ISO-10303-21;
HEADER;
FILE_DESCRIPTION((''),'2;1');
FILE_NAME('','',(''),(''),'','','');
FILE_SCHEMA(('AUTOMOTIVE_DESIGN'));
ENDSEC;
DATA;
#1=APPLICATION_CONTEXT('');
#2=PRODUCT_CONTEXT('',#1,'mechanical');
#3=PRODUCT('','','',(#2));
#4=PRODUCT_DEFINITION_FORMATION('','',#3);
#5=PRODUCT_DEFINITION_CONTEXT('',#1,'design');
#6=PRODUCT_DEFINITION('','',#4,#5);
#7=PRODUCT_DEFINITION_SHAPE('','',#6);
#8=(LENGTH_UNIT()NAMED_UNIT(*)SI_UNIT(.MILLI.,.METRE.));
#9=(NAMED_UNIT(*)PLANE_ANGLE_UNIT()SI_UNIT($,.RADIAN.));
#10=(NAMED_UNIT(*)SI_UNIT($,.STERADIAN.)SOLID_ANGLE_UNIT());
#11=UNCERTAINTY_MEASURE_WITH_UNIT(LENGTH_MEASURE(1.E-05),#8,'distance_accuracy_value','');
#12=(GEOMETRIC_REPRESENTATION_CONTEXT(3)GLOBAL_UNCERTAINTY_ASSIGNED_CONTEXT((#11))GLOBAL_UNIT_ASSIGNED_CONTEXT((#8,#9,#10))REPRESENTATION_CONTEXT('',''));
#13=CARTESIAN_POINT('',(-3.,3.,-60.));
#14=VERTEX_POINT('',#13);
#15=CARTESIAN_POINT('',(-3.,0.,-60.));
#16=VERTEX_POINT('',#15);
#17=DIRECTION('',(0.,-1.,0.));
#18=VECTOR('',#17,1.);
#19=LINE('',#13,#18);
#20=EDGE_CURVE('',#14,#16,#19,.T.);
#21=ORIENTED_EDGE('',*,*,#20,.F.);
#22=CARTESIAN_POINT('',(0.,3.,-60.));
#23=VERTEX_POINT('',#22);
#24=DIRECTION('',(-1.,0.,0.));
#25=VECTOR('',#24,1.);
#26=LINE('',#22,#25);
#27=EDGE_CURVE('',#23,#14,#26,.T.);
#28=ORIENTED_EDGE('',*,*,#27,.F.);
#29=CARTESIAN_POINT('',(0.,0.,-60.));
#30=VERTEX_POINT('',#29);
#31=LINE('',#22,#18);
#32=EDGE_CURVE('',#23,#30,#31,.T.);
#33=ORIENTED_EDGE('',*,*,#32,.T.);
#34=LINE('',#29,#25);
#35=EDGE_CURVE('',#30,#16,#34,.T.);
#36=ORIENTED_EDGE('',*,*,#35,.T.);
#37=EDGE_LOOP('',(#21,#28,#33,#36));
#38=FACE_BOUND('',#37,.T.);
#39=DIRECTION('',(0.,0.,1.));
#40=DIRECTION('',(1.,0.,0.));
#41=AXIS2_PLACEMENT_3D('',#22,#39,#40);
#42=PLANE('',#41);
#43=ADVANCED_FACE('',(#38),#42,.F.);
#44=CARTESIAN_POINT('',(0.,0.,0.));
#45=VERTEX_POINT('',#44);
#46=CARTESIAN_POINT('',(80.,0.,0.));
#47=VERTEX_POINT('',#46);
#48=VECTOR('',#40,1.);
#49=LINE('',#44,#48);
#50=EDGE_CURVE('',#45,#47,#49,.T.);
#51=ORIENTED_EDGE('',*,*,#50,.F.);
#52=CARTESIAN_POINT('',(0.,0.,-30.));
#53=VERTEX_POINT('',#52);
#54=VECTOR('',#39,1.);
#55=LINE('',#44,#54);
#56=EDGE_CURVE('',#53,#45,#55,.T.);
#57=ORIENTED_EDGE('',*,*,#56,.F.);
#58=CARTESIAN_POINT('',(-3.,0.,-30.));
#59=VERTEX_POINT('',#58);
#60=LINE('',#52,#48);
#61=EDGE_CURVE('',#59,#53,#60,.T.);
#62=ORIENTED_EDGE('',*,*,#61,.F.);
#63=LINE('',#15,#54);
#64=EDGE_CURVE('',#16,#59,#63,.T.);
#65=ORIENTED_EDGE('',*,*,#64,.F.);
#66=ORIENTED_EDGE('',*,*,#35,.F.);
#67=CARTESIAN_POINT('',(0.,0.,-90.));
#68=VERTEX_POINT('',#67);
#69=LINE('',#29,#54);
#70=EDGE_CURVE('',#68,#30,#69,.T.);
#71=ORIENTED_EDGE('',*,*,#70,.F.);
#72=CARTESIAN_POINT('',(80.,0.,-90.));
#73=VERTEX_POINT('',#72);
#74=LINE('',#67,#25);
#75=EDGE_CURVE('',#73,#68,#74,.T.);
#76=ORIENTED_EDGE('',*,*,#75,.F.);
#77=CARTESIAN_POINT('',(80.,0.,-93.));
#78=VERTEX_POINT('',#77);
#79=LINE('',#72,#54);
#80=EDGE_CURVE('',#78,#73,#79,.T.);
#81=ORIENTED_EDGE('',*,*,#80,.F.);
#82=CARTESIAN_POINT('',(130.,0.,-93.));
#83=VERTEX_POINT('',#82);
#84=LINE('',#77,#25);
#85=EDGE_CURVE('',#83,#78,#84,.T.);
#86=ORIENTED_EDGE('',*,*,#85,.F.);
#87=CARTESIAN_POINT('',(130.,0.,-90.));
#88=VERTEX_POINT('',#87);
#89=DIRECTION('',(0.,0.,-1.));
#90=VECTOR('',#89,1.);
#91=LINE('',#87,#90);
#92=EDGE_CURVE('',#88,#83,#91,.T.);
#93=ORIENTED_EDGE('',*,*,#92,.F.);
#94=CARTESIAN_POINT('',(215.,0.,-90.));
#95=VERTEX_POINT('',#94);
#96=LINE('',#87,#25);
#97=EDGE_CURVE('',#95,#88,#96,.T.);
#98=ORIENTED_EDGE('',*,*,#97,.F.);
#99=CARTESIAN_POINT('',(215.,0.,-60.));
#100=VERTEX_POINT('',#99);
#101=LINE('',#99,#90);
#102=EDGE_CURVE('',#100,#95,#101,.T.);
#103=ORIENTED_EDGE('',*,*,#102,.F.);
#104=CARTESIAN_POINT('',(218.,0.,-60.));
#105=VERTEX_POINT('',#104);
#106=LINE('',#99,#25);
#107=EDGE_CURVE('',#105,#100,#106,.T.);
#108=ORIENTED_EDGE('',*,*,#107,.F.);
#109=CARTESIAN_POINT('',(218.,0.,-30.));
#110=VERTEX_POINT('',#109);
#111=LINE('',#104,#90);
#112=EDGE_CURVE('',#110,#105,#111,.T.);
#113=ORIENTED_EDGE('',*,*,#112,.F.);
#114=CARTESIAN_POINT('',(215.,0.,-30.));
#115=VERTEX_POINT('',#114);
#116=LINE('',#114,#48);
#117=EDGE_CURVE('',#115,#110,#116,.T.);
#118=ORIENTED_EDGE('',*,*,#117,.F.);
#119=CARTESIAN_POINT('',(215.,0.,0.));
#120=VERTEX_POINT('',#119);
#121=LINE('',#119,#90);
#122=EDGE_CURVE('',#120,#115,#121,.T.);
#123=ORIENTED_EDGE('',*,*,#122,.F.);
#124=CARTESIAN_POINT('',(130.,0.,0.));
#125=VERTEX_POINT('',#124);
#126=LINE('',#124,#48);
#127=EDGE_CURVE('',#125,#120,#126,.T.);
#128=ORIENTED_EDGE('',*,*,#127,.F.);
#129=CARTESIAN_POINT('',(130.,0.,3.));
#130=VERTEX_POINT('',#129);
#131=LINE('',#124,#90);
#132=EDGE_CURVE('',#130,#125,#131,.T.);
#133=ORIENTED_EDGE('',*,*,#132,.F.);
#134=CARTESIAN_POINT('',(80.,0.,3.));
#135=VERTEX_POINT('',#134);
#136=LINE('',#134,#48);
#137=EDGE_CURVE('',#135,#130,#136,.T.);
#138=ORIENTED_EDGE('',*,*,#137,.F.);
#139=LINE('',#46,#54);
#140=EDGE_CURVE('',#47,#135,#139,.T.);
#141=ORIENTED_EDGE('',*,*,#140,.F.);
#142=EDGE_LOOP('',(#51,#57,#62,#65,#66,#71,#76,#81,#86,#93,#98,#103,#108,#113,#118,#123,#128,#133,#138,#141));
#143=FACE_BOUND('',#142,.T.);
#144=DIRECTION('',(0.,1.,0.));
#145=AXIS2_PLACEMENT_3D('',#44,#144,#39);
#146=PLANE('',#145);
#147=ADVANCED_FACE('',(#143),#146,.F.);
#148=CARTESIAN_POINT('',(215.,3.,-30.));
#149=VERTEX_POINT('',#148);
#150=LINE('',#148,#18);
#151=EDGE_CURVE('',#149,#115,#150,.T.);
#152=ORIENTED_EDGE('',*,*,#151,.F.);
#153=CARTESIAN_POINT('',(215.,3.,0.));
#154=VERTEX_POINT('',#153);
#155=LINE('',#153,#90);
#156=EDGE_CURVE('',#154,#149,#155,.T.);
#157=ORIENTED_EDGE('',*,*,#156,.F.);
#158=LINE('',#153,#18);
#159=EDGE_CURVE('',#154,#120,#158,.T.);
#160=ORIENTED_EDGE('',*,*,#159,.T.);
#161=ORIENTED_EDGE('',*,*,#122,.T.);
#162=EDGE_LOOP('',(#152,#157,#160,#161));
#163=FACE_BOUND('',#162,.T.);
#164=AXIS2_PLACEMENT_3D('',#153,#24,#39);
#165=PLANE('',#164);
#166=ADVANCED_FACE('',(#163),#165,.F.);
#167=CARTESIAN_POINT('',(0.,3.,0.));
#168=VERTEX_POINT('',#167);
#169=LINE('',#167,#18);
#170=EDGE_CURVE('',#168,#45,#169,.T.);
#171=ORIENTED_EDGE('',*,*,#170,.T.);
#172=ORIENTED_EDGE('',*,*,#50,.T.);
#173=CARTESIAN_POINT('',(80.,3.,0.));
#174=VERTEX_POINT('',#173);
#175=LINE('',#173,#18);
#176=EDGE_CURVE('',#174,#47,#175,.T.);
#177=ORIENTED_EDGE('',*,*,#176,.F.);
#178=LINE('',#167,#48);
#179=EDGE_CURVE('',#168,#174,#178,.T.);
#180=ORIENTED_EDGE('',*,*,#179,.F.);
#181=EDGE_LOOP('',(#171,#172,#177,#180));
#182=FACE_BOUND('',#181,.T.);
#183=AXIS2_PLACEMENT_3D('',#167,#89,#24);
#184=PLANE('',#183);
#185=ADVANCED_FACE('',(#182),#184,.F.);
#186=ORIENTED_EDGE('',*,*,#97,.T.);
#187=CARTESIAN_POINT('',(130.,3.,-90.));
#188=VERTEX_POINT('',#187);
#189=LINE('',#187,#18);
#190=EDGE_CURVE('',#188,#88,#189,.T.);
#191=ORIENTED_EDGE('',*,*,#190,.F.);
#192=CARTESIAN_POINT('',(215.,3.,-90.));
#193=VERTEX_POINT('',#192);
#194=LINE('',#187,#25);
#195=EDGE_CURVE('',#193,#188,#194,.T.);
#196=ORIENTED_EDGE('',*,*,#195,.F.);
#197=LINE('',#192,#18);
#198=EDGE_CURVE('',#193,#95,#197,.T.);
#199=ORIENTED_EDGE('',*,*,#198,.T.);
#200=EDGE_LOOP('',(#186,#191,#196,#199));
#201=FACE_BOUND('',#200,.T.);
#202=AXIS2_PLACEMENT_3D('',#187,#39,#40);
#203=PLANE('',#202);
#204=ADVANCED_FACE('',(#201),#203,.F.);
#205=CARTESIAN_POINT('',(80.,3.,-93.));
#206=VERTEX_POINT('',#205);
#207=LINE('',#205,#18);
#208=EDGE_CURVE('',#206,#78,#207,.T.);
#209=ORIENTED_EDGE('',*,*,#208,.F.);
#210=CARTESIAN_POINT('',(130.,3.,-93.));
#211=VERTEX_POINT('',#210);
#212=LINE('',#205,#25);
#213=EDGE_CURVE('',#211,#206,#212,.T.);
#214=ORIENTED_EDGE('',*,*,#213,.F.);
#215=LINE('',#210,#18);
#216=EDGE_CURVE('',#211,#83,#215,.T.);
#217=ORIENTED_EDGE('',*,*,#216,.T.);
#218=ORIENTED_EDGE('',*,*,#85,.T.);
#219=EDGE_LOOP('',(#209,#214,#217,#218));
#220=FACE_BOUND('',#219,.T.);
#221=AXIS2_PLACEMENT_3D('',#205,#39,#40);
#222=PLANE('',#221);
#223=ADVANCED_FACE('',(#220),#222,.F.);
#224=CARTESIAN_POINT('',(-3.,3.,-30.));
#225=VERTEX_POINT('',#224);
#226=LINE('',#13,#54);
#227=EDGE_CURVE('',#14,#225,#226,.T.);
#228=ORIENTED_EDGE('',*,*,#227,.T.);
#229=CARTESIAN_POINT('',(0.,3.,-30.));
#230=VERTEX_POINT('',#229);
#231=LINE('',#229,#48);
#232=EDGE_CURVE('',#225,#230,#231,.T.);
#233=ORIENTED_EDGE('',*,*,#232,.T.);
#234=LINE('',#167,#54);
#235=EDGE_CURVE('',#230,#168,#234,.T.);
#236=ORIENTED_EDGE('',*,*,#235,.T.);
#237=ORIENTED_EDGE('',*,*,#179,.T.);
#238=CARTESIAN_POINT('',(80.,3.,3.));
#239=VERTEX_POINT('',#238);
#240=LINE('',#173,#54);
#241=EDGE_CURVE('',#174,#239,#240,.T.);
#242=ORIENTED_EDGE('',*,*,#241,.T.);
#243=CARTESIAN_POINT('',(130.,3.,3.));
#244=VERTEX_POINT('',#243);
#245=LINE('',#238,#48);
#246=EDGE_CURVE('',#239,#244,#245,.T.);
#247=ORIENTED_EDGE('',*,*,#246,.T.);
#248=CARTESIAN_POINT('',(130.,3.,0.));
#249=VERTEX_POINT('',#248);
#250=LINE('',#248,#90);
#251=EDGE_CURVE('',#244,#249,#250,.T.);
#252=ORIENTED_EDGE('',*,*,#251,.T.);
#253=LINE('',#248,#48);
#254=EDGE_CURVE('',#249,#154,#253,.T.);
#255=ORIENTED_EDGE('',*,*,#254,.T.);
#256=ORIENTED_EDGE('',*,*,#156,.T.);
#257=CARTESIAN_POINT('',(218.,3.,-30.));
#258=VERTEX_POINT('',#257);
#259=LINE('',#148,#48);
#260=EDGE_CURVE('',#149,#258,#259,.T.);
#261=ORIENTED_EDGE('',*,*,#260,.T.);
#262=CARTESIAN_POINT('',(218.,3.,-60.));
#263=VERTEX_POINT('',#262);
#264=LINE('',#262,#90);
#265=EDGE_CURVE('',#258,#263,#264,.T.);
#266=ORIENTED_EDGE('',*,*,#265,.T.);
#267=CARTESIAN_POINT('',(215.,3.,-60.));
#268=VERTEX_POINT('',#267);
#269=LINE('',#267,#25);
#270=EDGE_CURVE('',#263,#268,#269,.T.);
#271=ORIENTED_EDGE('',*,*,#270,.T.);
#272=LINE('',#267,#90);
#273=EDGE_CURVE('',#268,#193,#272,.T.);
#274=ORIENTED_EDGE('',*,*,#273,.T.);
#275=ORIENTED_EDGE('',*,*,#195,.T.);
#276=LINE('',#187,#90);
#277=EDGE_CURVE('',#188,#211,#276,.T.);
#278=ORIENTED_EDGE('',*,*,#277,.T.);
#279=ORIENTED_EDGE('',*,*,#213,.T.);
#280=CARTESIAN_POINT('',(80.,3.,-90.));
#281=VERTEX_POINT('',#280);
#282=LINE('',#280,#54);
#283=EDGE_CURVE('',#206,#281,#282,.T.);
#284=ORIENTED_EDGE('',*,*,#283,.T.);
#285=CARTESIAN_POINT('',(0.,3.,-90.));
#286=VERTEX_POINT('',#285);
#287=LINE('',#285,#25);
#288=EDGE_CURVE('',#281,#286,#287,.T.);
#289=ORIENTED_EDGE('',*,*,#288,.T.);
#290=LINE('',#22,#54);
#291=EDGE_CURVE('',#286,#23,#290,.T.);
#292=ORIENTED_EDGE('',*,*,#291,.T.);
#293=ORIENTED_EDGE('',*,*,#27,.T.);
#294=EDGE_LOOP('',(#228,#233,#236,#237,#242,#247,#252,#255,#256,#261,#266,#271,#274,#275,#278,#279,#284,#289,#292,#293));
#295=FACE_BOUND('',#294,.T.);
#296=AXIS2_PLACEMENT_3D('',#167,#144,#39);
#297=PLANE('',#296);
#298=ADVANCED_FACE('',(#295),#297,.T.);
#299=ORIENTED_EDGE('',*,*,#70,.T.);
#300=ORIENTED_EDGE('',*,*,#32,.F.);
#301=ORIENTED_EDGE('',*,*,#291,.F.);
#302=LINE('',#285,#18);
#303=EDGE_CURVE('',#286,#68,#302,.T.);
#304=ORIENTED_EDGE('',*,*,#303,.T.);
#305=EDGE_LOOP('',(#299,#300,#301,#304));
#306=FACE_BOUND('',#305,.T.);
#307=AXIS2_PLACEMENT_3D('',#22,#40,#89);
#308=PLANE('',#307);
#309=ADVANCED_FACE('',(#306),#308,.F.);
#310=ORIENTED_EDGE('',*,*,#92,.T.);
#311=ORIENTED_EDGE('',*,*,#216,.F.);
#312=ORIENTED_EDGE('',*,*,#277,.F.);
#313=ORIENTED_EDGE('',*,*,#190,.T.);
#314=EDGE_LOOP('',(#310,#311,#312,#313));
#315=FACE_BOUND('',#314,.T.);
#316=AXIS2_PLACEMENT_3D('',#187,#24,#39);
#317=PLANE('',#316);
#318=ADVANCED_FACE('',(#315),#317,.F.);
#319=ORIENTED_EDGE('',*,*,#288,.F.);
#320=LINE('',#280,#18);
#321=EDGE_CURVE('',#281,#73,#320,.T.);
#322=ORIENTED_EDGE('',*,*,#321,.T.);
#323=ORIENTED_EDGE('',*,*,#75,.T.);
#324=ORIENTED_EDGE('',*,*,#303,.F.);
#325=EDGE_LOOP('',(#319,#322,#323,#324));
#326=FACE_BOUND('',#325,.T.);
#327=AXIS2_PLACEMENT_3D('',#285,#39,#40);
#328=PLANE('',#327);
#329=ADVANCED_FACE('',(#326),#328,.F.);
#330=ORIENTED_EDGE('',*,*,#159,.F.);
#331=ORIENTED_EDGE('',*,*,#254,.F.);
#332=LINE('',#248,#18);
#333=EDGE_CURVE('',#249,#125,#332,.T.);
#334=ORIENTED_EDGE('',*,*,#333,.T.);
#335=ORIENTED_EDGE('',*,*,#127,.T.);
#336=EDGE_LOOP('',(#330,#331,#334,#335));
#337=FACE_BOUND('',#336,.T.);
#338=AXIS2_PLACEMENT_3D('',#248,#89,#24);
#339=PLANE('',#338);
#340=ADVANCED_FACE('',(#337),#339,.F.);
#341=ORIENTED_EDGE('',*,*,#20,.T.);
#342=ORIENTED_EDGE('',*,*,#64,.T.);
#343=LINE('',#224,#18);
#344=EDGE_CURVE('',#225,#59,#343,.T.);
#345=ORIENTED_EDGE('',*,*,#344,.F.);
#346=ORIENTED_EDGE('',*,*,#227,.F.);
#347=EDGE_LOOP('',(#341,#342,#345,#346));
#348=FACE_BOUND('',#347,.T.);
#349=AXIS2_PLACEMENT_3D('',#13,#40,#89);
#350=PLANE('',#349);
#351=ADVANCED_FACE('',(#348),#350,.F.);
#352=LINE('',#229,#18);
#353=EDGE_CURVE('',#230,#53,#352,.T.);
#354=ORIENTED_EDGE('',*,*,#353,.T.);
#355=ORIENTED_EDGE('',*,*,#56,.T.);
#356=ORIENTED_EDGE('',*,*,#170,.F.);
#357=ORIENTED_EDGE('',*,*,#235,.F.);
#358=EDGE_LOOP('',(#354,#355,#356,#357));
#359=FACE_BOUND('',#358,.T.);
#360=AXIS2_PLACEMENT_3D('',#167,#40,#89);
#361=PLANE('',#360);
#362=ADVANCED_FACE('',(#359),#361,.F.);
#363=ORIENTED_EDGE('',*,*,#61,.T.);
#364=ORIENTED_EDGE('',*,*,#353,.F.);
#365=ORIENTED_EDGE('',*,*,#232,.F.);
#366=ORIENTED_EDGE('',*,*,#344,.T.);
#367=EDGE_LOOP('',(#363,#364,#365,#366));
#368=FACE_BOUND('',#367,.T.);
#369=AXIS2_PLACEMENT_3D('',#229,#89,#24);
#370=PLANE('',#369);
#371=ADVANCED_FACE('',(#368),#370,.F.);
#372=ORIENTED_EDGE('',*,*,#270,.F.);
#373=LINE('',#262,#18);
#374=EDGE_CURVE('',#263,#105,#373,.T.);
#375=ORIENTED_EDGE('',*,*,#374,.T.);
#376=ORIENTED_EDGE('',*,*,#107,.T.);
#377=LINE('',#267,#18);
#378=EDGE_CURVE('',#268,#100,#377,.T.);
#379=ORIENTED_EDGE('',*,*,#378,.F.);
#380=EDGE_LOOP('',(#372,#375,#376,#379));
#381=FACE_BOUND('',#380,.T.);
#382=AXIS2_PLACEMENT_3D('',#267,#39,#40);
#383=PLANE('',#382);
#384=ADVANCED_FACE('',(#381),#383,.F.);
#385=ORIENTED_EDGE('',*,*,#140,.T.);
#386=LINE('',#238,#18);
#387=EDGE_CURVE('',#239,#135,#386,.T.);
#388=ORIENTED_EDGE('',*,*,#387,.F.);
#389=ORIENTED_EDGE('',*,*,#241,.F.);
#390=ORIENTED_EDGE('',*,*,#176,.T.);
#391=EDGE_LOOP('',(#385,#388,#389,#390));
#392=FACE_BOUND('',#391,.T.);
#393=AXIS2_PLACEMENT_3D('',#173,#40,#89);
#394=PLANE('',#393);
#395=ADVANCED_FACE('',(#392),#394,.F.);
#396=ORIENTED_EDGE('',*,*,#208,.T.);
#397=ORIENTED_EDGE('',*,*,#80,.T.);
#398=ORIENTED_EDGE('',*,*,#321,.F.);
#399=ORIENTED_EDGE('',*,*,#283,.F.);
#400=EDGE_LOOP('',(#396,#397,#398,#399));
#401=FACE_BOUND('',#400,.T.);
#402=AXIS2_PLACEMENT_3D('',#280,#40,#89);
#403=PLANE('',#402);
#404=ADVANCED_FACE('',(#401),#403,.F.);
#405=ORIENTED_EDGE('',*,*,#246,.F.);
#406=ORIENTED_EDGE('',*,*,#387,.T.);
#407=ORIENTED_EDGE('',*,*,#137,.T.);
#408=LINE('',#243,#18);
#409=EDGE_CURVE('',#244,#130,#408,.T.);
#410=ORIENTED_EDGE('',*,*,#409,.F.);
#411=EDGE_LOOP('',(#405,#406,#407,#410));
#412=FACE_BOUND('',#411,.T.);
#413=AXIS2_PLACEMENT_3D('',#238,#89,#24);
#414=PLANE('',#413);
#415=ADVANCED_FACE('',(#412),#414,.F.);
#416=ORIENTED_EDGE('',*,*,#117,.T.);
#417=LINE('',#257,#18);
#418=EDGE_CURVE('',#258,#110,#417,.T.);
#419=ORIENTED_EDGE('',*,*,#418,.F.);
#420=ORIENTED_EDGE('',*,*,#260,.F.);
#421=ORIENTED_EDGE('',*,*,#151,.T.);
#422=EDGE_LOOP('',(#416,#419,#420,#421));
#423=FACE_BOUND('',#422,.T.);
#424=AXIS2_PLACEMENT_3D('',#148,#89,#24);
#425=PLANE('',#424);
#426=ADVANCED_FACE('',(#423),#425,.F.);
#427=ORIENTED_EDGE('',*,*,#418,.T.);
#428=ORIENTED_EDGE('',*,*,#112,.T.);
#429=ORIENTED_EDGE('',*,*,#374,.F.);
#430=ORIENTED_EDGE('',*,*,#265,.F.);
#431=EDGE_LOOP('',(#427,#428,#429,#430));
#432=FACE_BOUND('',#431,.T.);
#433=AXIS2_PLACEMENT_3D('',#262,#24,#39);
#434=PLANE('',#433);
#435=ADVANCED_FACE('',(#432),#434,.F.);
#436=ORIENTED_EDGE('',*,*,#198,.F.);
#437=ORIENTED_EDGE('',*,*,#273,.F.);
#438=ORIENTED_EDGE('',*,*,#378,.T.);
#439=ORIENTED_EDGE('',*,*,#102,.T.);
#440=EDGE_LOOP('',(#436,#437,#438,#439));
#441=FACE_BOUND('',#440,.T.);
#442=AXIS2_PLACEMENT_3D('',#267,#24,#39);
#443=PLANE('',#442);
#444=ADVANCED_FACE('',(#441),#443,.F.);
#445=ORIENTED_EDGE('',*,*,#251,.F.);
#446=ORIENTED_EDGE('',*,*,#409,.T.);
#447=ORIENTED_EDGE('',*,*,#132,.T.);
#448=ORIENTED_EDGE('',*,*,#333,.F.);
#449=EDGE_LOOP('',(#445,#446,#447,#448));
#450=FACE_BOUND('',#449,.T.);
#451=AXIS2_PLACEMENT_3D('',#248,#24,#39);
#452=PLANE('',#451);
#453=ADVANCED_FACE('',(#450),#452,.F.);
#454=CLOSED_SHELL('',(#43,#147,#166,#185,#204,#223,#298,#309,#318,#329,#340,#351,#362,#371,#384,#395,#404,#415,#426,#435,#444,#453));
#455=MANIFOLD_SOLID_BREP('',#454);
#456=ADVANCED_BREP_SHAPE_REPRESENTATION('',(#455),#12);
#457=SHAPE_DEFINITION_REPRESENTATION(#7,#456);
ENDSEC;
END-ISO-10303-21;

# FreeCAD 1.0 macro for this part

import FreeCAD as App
import Part
import Sketcher

doc = App.newDocument("Part")
body = doc.addObject("PartDesign::Body", "Body")

# Sketch on XZ plane
sketch1 = body.newObject("Sketcher::SketchObject", "Sketch")
sketch1.AttachmentSupport = (doc.getObject("XZ_Plane"), [""])
sketch1.MapMode = "FlatFace"
sketch1.addGeometry([
    Part.LineSegment(App.Vector(215, -90, 0), App.Vector(130, -90, 0)),  # 0
    Part.LineSegment(App.Vector(130, -90, 0), App.Vector(130, -93, 0)),  # 1
    Part.LineSegment(App.Vector(130, -93, 0), App.Vector(80, -93, 0)),  # 2
    Part.LineSegment(App.Vector(80, -93, 0), App.Vector(80, -90, 0)),  # 3
    Part.LineSegment(App.Vector(80, -90, 0), App.Vector(0, -90, 0)),  # 4
    Part.LineSegment(App.Vector(0, -90, 0), App.Vector(0, -60, 0)),  # 5
    Part.LineSegment(App.Vector(0, -60, 0), App.Vector(-3, -60, 0)),  # 6
    Part.LineSegment(App.Vector(-3, -60, 0), App.Vector(-3, -30, 0)),  # 7
    Part.LineSegment(App.Vector(-3, -30, 0), App.Vector(0, -30, 0)),  # 8
    Part.LineSegment(App.Vector(0, -30, 0), App.Vector(0, 0, 0)),  # 9
    Part.LineSegment(App.Vector(0, 0, 0), App.Vector(80, 0, 0)),  # 10
    Part.LineSegment(App.Vector(80, 0, 0), App.Vector(80, 3, 0)),  # 11
    Part.LineSegment(App.Vector(80, 3, 0), App.Vector(130, 3, 0)),  # 12
    Part.LineSegment(App.Vector(130, 3, 0), App.Vector(130, 0, 0)),  # 13
    Part.LineSegment(App.Vector(130, 0, 0), App.Vector(215, 0, 0)),  # 14
    Part.LineSegment(App.Vector(215, 0, 0), App.Vector(215, -30, 0)),  # 15
    Part.LineSegment(App.Vector(215, -30, 0), App.Vector(218, -30, 0)),  # 16
    Part.LineSegment(App.Vector(218, -30, 0), App.Vector(218, -60, 0)),  # 17
    Part.LineSegment(App.Vector(218, -60, 0), App.Vector(215, -60, 0)),  # 18
    Part.LineSegment(App.Vector(215, -60, 0), App.Vector(215, -90, 0)),  # 19
], False)
sketch1.addConstraint([
    Sketcher.Constraint("Coincident", 0, 2, 1, 1),
    Sketcher.Constraint("Coincident", 1, 2, 2, 1),
    Sketcher.Constraint("Coincident", 2, 2, 3, 1),
    Sketcher.Constraint("Coincident", 3, 2, 4, 1),
    Sketcher.Constraint("Coincident", 4, 2, 5, 1),
    Sketcher.Constraint("Coincident", 5, 2, 6, 1),
    Sketcher.Constraint("Coincident", 6, 2, 7, 1),
    Sketcher.Constraint("Coincident", 7, 2, 8, 1),
    Sketcher.Constraint("Coincident", 8, 2, 9, 1),
    Sketcher.Constraint("Coincident", 9, 2, 10, 1),
    Sketcher.Constraint("Coincident", 10, 2, 11, 1),
    Sketcher.Constraint("Coincident", 11, 2, 12, 1),
    Sketcher.Constraint("Coincident", 12, 2, 13, 1),
    Sketcher.Constraint("Coincident", 13, 2, 14, 1),
    Sketcher.Constraint("Coincident", 14, 2, 15, 1),
    Sketcher.Constraint("Coincident", 15, 2, 16, 1),
    Sketcher.Constraint("Coincident", 16, 2, 17, 1),
    Sketcher.Constraint("Coincident", 17, 2, 18, 1),
    Sketcher.Constraint("Coincident", 18, 2, 19, 1),
    Sketcher.Constraint("Coincident", 19, 2, 0, 1),
    Sketcher.Constraint("Horizontal", 0),
    Sketcher.Constraint("Vertical", 1),
    Sketcher.Constraint("Horizontal", 2),
    Sketcher.Constraint("Vertical", 3),
    Sketcher.Constraint("Horizontal", 4),
    Sketcher.Constraint("Vertical", 5),
    Sketcher.Constraint("Horizontal", 6),
    Sketcher.Constraint("Vertical", 7),
    Sketcher.Constraint("Horizontal", 8),
    Sketcher.Constraint("Vertical", 9),
    Sketcher.Constraint("Horizontal", 10),
    Sketcher.Constraint("Vertical", 11),
    Sketcher.Constraint("Horizontal", 12),
    Sketcher.Constraint("Vertical", 13),
    Sketcher.Constraint("Horizontal", 14),
    Sketcher.Constraint("Vertical", 15),
    Sketcher.Constraint("Horizontal", 16),
    Sketcher.Constraint("Vertical", 17),
    Sketcher.Constraint("Horizontal", 18),
    Sketcher.Constraint("Vertical", 19),
    Sketcher.Constraint("Coincident", 9, 2, -1, 1),
    Sketcher.Constraint("PointOnObject", 4, 2, -2),
    Sketcher.Constraint("PointOnObject", 13, 2, -1),
    Sketcher.Constraint("Horizontal", 0, 2, 3, 2),
    Sketcher.Constraint("Horizontal", 8, 2, 15, 2),
    Sketcher.Constraint("Horizontal", 6, 2, 17, 2),
    Sketcher.Constraint("Vertical", 3, 2, 10, 2),
    Sketcher.Constraint("Vertical", 1, 2, 12, 2),
    Sketcher.Constraint("Vertical", 15, 2, 18, 2),
    Sketcher.Constraint("Equal", 8, 16),
    Sketcher.Constraint("Equal", 18, 1),
    Sketcher.Constraint("Equal", 5, 7),
    Sketcher.Constraint("Equal", 7, 9),
    Sketcher.Constraint("Equal", 3, 11),
    Sketcher.Constraint("DistanceX", 0, 2, 0, 1, 85.0),
    Sketcher.Constraint("DistanceX", 2, 2, 2, 1, 50.0),
    Sketcher.Constraint("DistanceX", 4, 2, 4, 1, 80.0),
    Sketcher.Constraint("DistanceX", 6, 2, 6, 1, 3.0),
    Sketcher.Constraint("DistanceY", 5, 1, 5, 2, 30.0),
])
pad1 = body.newObject("PartDesign::Pad", "Pad")
pad1.Profile = sketch1
pad1.Length = 3
pad1.Reversed = True

doc.recompute()
